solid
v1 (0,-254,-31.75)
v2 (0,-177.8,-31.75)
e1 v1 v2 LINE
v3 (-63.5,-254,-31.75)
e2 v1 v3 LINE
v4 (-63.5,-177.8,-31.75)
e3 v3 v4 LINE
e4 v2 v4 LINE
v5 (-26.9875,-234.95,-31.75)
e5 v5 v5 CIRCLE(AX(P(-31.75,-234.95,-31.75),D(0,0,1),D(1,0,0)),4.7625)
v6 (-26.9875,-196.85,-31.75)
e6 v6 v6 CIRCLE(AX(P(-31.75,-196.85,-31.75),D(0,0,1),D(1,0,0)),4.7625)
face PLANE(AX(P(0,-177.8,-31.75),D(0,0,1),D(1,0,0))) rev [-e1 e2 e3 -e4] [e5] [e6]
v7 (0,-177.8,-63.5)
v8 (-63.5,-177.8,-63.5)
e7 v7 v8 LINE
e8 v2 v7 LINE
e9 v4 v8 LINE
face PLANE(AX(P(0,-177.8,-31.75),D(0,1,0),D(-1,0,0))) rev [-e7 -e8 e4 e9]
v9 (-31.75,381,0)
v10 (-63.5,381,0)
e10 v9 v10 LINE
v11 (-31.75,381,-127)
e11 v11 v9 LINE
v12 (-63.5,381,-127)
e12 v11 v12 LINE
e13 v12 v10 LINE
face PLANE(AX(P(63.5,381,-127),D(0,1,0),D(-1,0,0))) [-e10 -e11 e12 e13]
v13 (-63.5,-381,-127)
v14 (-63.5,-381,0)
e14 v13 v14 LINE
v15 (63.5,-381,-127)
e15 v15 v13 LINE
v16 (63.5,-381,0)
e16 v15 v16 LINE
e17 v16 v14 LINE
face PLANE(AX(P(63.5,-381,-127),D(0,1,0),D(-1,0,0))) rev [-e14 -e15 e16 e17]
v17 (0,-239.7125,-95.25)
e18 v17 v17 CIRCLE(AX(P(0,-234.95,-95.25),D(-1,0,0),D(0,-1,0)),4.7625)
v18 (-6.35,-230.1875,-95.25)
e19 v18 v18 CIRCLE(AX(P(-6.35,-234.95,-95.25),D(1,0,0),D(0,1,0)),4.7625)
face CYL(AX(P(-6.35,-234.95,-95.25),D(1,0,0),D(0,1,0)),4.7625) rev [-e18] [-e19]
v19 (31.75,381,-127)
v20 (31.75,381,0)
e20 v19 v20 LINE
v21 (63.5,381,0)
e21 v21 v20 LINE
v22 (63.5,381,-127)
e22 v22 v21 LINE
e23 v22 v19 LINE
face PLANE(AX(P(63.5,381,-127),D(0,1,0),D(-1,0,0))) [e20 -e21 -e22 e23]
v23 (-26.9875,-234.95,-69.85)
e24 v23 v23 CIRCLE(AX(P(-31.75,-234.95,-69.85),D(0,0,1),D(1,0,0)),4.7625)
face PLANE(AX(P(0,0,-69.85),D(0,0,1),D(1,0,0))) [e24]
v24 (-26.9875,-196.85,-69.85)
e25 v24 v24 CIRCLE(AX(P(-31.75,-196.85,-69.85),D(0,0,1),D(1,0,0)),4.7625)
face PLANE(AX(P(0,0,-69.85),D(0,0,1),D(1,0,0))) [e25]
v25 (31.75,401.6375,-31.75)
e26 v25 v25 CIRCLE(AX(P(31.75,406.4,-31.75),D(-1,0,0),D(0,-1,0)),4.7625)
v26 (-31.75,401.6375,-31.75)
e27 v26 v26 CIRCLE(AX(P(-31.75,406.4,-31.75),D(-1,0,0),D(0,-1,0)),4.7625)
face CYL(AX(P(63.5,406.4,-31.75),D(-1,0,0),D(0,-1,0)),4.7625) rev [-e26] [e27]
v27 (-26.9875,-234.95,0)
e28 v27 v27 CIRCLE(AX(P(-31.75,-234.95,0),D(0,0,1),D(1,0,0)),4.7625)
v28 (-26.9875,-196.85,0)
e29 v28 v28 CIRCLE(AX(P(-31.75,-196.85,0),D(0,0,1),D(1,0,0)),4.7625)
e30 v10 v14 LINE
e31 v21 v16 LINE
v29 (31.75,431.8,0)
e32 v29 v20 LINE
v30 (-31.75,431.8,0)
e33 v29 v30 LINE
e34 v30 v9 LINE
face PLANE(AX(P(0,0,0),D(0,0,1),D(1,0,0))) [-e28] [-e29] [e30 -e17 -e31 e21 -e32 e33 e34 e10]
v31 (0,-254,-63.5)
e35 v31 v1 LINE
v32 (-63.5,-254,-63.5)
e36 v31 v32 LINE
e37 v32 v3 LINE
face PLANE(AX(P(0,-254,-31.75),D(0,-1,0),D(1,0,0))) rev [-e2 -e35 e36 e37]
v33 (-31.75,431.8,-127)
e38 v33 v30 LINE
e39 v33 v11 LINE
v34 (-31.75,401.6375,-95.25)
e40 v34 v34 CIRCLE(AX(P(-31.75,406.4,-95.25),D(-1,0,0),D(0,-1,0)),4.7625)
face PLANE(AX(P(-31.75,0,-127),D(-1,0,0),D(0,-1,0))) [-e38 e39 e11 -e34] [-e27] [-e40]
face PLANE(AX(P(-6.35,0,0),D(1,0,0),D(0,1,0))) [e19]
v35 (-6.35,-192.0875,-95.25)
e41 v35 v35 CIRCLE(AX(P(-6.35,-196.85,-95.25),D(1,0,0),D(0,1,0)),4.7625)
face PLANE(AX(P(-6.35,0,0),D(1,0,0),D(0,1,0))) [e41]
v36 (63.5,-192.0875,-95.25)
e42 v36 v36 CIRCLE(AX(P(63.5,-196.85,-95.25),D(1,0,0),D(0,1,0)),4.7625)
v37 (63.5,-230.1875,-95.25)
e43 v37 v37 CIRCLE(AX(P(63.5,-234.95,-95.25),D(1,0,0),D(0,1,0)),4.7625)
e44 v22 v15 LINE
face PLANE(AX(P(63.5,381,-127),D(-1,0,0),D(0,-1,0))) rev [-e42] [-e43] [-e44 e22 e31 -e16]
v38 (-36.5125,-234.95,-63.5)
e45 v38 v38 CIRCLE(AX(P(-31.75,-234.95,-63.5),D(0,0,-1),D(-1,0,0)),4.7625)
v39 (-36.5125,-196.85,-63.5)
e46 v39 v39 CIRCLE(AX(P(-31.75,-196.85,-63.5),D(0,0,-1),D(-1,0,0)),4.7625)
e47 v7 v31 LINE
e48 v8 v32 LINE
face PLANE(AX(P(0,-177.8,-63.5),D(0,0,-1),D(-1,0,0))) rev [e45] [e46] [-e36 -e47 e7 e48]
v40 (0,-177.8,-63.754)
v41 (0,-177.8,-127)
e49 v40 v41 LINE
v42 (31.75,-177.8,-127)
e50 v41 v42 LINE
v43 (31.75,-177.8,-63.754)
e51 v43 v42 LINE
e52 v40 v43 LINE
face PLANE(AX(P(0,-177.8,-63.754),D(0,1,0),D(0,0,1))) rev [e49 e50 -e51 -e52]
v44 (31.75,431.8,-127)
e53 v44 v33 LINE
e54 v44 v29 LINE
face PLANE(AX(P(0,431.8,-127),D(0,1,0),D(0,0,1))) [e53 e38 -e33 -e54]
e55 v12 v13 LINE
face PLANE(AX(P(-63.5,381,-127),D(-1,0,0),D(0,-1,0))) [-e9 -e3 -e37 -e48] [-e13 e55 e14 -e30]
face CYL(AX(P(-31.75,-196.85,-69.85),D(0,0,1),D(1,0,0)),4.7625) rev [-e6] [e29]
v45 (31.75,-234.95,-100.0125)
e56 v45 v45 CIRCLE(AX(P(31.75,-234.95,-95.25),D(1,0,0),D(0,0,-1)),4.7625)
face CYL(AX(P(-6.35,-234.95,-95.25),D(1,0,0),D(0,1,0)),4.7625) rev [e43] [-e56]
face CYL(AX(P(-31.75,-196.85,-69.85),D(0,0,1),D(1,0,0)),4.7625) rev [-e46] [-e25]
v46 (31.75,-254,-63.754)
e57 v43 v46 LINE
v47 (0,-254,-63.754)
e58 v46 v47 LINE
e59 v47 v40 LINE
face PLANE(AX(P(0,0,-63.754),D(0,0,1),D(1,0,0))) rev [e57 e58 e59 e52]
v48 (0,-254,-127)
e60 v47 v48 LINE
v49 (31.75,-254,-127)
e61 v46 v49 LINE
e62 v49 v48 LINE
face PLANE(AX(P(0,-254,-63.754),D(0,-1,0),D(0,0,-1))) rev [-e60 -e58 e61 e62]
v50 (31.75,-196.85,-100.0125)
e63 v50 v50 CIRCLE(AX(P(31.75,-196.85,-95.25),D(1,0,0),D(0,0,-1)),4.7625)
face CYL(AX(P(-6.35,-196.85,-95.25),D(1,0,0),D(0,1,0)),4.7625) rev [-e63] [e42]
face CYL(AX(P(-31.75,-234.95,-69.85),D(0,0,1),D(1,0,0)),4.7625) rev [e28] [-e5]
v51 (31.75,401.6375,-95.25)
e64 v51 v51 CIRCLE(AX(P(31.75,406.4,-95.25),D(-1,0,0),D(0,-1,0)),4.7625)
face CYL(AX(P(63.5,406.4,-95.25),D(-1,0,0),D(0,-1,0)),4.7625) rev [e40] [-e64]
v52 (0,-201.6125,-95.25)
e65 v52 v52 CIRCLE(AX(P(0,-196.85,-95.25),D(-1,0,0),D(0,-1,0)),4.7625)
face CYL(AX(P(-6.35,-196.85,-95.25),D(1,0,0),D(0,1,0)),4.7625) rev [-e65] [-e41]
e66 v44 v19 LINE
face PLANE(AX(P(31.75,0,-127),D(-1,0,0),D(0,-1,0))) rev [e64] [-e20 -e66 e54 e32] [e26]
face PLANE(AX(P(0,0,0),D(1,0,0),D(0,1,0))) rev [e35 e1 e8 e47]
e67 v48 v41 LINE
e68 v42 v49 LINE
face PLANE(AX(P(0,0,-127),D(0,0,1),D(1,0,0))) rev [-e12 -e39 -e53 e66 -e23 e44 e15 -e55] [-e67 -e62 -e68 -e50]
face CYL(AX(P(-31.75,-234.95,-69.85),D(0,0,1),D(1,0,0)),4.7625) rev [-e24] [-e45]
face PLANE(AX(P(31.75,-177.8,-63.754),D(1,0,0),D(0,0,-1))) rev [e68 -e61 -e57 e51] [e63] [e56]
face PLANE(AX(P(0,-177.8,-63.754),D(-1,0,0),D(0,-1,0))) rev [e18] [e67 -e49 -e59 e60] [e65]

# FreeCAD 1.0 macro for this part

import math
import FreeCAD as App
import Part
import Sketcher
from FreeCAD import Vector
Q = App.Units.Quantity


def add_polygon(sketch, points):
    """Adds a closed chain of lines whose ends are joined by coincident constraints."""
    first, n = sketch.GeometryCount, len(points)
    for a, b in zip(points, points[1:] + points[:1]):
        sketch.addGeometry(Part.LineSegment(App.Vector(*a, 0), App.Vector(*b, 0)), False)
    for i in range(n):
        sketch.addConstraint(Sketcher.Constraint("Coincident", first + i, 2, first + (i + 1) % n, 1))

doc = App.newDocument("Part")
body = doc.addObject("PartDesign::Body", "Body")

sketch1 = body.newObject("Sketcher::SketchObject", "Sketch")
sketch1.AttachmentSupport = (doc.getObject("XY_Plane"), [""])
sketch1.MapMode = "FlatFace"
add_polygon(sketch1, [(64, -381), (64, 381), (32, 381), (32, 432), (-32, 432), (-32, 381), (-64, 381), (-64, -381)])
sketch1.addConstraint([
    Sketcher.Constraint("Vertical", 0),
    Sketcher.Constraint("Horizontal", 1),
    Sketcher.Constraint("Vertical", 2),
    Sketcher.Constraint("Horizontal", 3),
    Sketcher.Constraint("Vertical", 4),
    Sketcher.Constraint("Horizontal", 5),
    Sketcher.Constraint("Vertical", 6),
    Sketcher.Constraint("Horizontal", 7),
    Sketcher.Constraint("Symmetric", 0, 2, 6, 2, -1, 1),
    Sketcher.Constraint("Symmetric", 1, 2, 4, 2, -2),
    Sketcher.Constraint("DistanceX", 7, 1, 7, 2, Q("5 in")),
    Sketcher.Constraint("DistanceY", 0, 1, 0, 2, Q("30 in")),
    Sketcher.Constraint("DistanceY", 2, 1, 2, 2, Q("2 in")),
    Sketcher.Constraint("DistanceX", 3, 2, 3, 1, Q("2.5 in")),
])
pad1 = body.newObject("PartDesign::Pad", "Pad")
pad1.Profile = sketch1
pad1.Length = Q("5 in")
pad1.Reversed = True

sketch2 = body.newObject("Sketcher::SketchObject", "Sketch001")
sketch2.AttachmentSupport = (doc.getObject("YZ_Plane"), [""])
sketch2.MapMode = "FlatFace"
sketch2.AttachmentOffset = App.Placement(Vector(0, 0, -2.5 * 25.4), App.Rotation())
add_polygon(sketch2, [(-178, -64), (-254, -64), (-254, -32), (-178, -32)])
sketch2.addConstraint([
    Sketcher.Constraint("Horizontal", 0),
    Sketcher.Constraint("Vertical", 1),
    Sketcher.Constraint("Horizontal", 2),
    Sketcher.Constraint("Vertical", 3),
    Sketcher.Constraint("DistanceX", 0, 2, 0, 1, Q("3 in")),
    Sketcher.Constraint("DistanceX", 0, 2, -1, 1, Q("10 in")),
    Sketcher.Constraint("DistanceY", 1, 1, 1, 2, Q("1.25 in")),
    Sketcher.Constraint("DistanceY", 0, 2, -1, 1, Q("2.5 in")),
])
pocket1 = body.newObject("PartDesign::Pocket", "Pocket")
pocket1.Profile = sketch2
pocket1.Length = Q("2.5 in")
pocket1.Reversed = True

sketch3 = body.newObject("Sketcher::SketchObject", "Sketch002")
sketch3.AttachmentSupport = (doc.getObject("XY_Plane"), [""])
sketch3.MapMode = "FlatFace"
sketch3.AttachmentOffset = App.Placement(Vector(0, 0, -5 * 25.4), App.Rotation())
add_polygon(sketch3, [(32, -178), (32, -254), (0, -254), (0, -178)])
sketch3.addConstraint([
    Sketcher.Constraint("Vertical", 0),
    Sketcher.Constraint("Horizontal", 1),
    Sketcher.Constraint("Vertical", 2),
    Sketcher.Constraint("Horizontal", 3),
    Sketcher.Constraint("PointOnObject", 1, 2, -2),
    Sketcher.Constraint("DistanceY", 0, 2, 0, 1, Q("3 in")),
    Sketcher.Constraint("DistanceY", 0, 2, -1, 1, Q("10 in")),
    Sketcher.Constraint("DistanceX", 1, 2, 1, 1, Q("1.25 in")),
])
pocket2 = body.newObject("PartDesign::Pocket", "Pocket001")
pocket2.Profile = sketch3
pocket2.Length = Q("2.49 in")
pocket2.Reversed = True

sketch4 = body.newObject("Sketcher::SketchObject", "Sketch003")
sketch4.AttachmentSupport = (doc.getObject("YZ_Plane"), [""])
sketch4.MapMode = "FlatFace"
sketch4.AttachmentOffset = App.Placement(Vector(0, 0, 2.5 * 25.4), App.Rotation())
sketch4.addGeometry([
    Part.ArcOfCircle(Part.Circle(Vector(-235, -95.2, 0), Vector(0, 0, 1), 4.8), math.radians(-90), math.radians(0)),
    Part.ArcOfCircle(Part.Circle(Vector(-234.9, -95.2, 0), Vector(0, 0, 1), 4.8), math.radians(0), math.radians(180)),
    Part.ArcOfCircle(Part.Circle(Vector(-234.9, -95.2, 0), Vector(0, 0, 1), 4.8), math.radians(-180), math.radians(-90)),
    Part.ArcOfCircle(Part.Circle(Vector(-196.9, -95.2, 0), Vector(0, 0, 1), 4.8), math.radians(-90), math.radians(0)),
    Part.ArcOfCircle(Part.Circle(Vector(-196.8, -95.2, 0), Vector(0, 0, 1), 4.8), math.radians(0), math.radians(180)),
    Part.ArcOfCircle(Part.Circle(Vector(-196.8, -95.2, 0), Vector(0, 0, 1), 4.8), math.radians(-180), math.radians(-90)),
], False)
sketch4.addConstraint([
    Sketcher.Constraint("Tangent", 0, 2, 1, 1),
    Sketcher.Constraint("Tangent", 1, 2, 2, 1),
    Sketcher.Constraint("Tangent", 2, 2, 0, 1),
    Sketcher.Constraint("Tangent", 3, 2, 4, 1),
    Sketcher.Constraint("Tangent", 4, 2, 5, 1),
    Sketcher.Constraint("Tangent", 5, 2, 3, 1),
    Sketcher.Constraint("Equal", 2, 3),
    Sketcher.Constraint("Horizontal", 2, 3, 3, 3),
    Sketcher.Constraint("Horizontal", 5, 3, 0, 2),
    Sketcher.Constraint("Horizontal", 0, 2, 1, 2),
    Sketcher.Constraint("Horizontal", 1, 2, 3, 2),
    Sketcher.Constraint("Horizontal", 3, 2, 4, 2),
    Sketcher.Constraint("Vertical", 1, 3, 2, 2),
    Sketcher.Constraint("Vertical", 4, 3, 5, 2),
    Sketcher.Constraint("Radius", 0, Q("0.1875 in")),
    Sketcher.Constraint("DistanceX", 2, 3, 3, 3, Q("1.5 in")),
    Sketcher.Constraint("DistanceX", 0, 3, -1, 1, Q("9.25 in")),
    Sketcher.Constraint("DistanceY", 0, 3, -1, 1, Q("3.75 in")),
])
pocket3 = body.newObject("PartDesign::Pocket", "Pocket002")
pocket3.Profile = sketch4
pocket3.Length = Q("2.75 in")

sketch5 = body.newObject("Sketcher::SketchObject", "Sketch004")
sketch5.AttachmentSupport = (doc.getObject("XY_Plane"), [""])
sketch5.MapMode = "FlatFace"
sketch5.addGeometry([
    Part.ArcOfCircle(Part.Circle(Vector(-31.8, -235, 0), Vector(0, 0, 1), 4.8), math.radians(0), math.radians(90)),
    Part.ArcOfCircle(Part.Circle(Vector(-31.8, -234.9, 0), Vector(0, 0, 1), 4.8), math.radians(90), math.radians(270)),
    Part.ArcOfCircle(Part.Circle(Vector(-31.8, -234.9, 0), Vector(0, 0, 1), 4.8), math.radians(-90), math.radians(0)),
    Part.ArcOfCircle(Part.Circle(Vector(-31.8, -196.9, 0), Vector(0, 0, 1), 4.8), math.radians(0), math.radians(90)),
    Part.ArcOfCircle(Part.Circle(Vector(-31.8, -196.8, 0), Vector(0, 0, 1), 4.8), math.radians(90), math.radians(270)),
    Part.ArcOfCircle(Part.Circle(Vector(-31.8, -196.8, 0), Vector(0, 0, 1), 4.8), math.radians(-90), math.radians(0)),
], False)
sketch5.addConstraint([
    Sketcher.Constraint("Tangent", 0, 2, 1, 1),
    Sketcher.Constraint("Tangent", 1, 2, 2, 1),
    Sketcher.Constraint("Tangent", 2, 2, 0, 1),
    Sketcher.Constraint("Tangent", 3, 2, 4, 1),
    Sketcher.Constraint("Tangent", 4, 2, 5, 1),
    Sketcher.Constraint("Tangent", 5, 2, 3, 1),
    Sketcher.Constraint("Equal", 2, 3),
    Sketcher.Constraint("Horizontal", 1, 3, 2, 2),
    Sketcher.Constraint("Horizontal", 4, 3, 5, 2),
    Sketcher.Constraint("Vertical", 2, 3, 3, 3),
    Sketcher.Constraint("Vertical", 5, 3, 0, 2),
    Sketcher.Constraint("Vertical", 0, 2, 1, 2),
    Sketcher.Constraint("Vertical", 1, 2, 3, 2),
    Sketcher.Constraint("Vertical", 3, 2, 4, 2),
    Sketcher.Constraint("Radius", 0, Q("0.1875 in")),
    Sketcher.Constraint("DistanceY", 2, 3, 3, 3, Q("1.5 in")),
    Sketcher.Constraint("DistanceX", 0, 3, -1, 1, Q("1.25 in")),
    Sketcher.Constraint("DistanceY", 0, 3, -1, 1, Q("9.25 in")),
])
pocket4 = body.newObject("PartDesign::Pocket", "Pocket003")
pocket4.Profile = sketch5
pocket4.Length = Q("2.75 in")

sketch6 = body.newObject("Sketcher::SketchObject", "Sketch005")
sketch6.AttachmentSupport = (doc.getObject("YZ_Plane"), [""])
sketch6.MapMode = "FlatFace"
sketch6.AttachmentOffset = App.Placement(Vector(0, 0, -1.25 * 25.4), App.Rotation())
sketch6.addGeometry([
    Part.Circle(Vector(406.4, -95.2, 0), Vector(0, 0, 1), 4.8),
    Part.Circle(Vector(406.4, -31.8, 0), Vector(0, 0, 1), 4.8),
], False)
sketch6.addConstraint([
    Sketcher.Constraint("Equal", 0, 1),
    Sketcher.Constraint("Vertical", 0, 3, 1, 3),
    Sketcher.Constraint("Diameter", 0, Q("0.375 in")),
    Sketcher.Constraint("DistanceX", -1, 1, 0, 3, Q("16 in")),
    Sketcher.Constraint("DistanceY", 0, 3, 1, 3, Q("2.5 in")),
    Sketcher.Constraint("DistanceY", 0, 3, -1, 1, Q("3.75 in")),
])
pocket5 = body.newObject("PartDesign::Pocket", "Pocket004")
pocket5.Profile = sketch6
pocket5.Type = "ThroughAll"
pocket5.Reversed = True

doc.recompute()
